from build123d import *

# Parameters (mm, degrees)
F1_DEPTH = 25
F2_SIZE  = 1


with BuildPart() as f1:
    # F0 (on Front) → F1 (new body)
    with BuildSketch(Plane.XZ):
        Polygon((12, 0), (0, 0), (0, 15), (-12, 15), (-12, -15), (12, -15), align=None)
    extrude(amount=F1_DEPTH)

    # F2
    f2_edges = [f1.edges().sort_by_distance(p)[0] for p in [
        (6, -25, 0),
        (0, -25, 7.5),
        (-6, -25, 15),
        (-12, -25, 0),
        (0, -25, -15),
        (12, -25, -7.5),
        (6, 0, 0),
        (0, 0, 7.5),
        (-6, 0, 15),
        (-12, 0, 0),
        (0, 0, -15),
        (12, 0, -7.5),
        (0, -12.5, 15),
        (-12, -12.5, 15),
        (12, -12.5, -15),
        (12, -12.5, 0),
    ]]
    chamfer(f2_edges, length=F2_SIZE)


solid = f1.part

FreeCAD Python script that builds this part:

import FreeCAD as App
import Part
import Sketcher
from FreeCAD import Vector


def edges_at(feature, points):
    """Names of the edges that pass closest to the given points."""
    edges = feature.Shape.Edges
    near = lambda p: min(range(len(edges)), key=lambda i: edges[i].distToShape(Part.Vertex(*p))[0])
    return sorted({f"Edge{near(p) + 1}" for p in points})


def add_polygon(sketch, points):
    """Adds a closed chain of lines whose ends are joined by coincident constraints."""
    first, n = sketch.GeometryCount, len(points)
    for a, b in zip(points, points[1:] + points[:1]):
        sketch.addGeometry(Part.LineSegment(App.Vector(*a, 0), App.Vector(*b, 0)), False)
    for i in range(n):
        sketch.addConstraint(Sketcher.Constraint("Coincident", first + i, 2, first + (i + 1) % n, 1))

doc = App.newDocument("Part")
params = doc.addObject("Spreadsheet::Sheet", "Params")
for row, (alias, value) in enumerate([
    ("sketch1_width", "12 mm"),
    ("sketch1_height", "15 mm"),
    ("pad1_length", "25 mm"),
    ("chamfer_size", "1 mm"),
], start=1):
    params.set(f"A{row}", alias)
    params.set(f"B{row}", "=" + value)
    params.setAlias(f"B{row}", alias)

body = doc.addObject("PartDesign::Body", "Body")

# Sketch on XZ plane
sketch1 = doc.addObject("Sketcher::SketchObject", "Sketch")
body.addObject(sketch1)
sketch1.AttachmentSupport = (doc.XZ_Plane, [""])
sketch1.MapMode = "FlatFace"
add_polygon(sketch1, [(12, 0), (0, 0), (0, 15), (-12, 15), (-12, -15), (12, -15)])  # lines 0-5
sketch1.addConstraint(Sketcher.Constraint("Horizontal", 0))
sketch1.addConstraint(Sketcher.Constraint("Vertical", 1))
sketch1.addConstraint(Sketcher.Constraint("Horizontal", 2))
sketch1.addConstraint(Sketcher.Constraint("Vertical", 3))
sketch1.addConstraint(Sketcher.Constraint("Horizontal", 4))
sketch1.addConstraint(Sketcher.Constraint("Vertical", 5))
sketch1.addConstraint(Sketcher.Constraint("Coincident", 0, 2, -1, 1))
sketch1.addConstraint(Sketcher.Constraint("Symmetric", 2, 2, 4, 2, -1, 1))
sketch1.addConstraint(Sketcher.Constraint("DistanceX", 0, 2, 0, 1, 12.0))
sketch1.addConstraint(Sketcher.Constraint("DistanceY", 1, 1, 1, 2, 15.0))
sketch1.setExpression("Constraints[14]", "Params.sketch1_width")
sketch1.setExpression("Constraints[15]", "Params.sketch1_height")
pad1 = doc.addObject("PartDesign::Pad", "Pad")
body.addObject(pad1)
pad1.Profile = sketch1
pad1.setExpression("Length", "Params.pad1_length")
doc.recompute()

chamfer = doc.addObject("PartDesign::Chamfer", "Chamfer")
body.addObject(chamfer)
chamfer.Base = (pad1, edges_at(pad1, [
    (6, -25, 0),
    (0, -25, 7.5),
    (-6, -25, 15),
    (-12, -25, 0),
    (0, -25, -15),
    (12, -25, -7.5),
    (6, 0, 0),
    (0, 0, 7.5),
    (-6, 0, 15),
    (-12, 0, 0),
    (0, 0, -15),
    (12, 0, -7.5),
    (0, -12.5, 15),
    (-12, -12.5, 15),
    (12, -12.5, -15),
    (12, -12.5, 0),
]))
chamfer.setExpression("Size", "Params.chamfer_size")

doc.recompute()
